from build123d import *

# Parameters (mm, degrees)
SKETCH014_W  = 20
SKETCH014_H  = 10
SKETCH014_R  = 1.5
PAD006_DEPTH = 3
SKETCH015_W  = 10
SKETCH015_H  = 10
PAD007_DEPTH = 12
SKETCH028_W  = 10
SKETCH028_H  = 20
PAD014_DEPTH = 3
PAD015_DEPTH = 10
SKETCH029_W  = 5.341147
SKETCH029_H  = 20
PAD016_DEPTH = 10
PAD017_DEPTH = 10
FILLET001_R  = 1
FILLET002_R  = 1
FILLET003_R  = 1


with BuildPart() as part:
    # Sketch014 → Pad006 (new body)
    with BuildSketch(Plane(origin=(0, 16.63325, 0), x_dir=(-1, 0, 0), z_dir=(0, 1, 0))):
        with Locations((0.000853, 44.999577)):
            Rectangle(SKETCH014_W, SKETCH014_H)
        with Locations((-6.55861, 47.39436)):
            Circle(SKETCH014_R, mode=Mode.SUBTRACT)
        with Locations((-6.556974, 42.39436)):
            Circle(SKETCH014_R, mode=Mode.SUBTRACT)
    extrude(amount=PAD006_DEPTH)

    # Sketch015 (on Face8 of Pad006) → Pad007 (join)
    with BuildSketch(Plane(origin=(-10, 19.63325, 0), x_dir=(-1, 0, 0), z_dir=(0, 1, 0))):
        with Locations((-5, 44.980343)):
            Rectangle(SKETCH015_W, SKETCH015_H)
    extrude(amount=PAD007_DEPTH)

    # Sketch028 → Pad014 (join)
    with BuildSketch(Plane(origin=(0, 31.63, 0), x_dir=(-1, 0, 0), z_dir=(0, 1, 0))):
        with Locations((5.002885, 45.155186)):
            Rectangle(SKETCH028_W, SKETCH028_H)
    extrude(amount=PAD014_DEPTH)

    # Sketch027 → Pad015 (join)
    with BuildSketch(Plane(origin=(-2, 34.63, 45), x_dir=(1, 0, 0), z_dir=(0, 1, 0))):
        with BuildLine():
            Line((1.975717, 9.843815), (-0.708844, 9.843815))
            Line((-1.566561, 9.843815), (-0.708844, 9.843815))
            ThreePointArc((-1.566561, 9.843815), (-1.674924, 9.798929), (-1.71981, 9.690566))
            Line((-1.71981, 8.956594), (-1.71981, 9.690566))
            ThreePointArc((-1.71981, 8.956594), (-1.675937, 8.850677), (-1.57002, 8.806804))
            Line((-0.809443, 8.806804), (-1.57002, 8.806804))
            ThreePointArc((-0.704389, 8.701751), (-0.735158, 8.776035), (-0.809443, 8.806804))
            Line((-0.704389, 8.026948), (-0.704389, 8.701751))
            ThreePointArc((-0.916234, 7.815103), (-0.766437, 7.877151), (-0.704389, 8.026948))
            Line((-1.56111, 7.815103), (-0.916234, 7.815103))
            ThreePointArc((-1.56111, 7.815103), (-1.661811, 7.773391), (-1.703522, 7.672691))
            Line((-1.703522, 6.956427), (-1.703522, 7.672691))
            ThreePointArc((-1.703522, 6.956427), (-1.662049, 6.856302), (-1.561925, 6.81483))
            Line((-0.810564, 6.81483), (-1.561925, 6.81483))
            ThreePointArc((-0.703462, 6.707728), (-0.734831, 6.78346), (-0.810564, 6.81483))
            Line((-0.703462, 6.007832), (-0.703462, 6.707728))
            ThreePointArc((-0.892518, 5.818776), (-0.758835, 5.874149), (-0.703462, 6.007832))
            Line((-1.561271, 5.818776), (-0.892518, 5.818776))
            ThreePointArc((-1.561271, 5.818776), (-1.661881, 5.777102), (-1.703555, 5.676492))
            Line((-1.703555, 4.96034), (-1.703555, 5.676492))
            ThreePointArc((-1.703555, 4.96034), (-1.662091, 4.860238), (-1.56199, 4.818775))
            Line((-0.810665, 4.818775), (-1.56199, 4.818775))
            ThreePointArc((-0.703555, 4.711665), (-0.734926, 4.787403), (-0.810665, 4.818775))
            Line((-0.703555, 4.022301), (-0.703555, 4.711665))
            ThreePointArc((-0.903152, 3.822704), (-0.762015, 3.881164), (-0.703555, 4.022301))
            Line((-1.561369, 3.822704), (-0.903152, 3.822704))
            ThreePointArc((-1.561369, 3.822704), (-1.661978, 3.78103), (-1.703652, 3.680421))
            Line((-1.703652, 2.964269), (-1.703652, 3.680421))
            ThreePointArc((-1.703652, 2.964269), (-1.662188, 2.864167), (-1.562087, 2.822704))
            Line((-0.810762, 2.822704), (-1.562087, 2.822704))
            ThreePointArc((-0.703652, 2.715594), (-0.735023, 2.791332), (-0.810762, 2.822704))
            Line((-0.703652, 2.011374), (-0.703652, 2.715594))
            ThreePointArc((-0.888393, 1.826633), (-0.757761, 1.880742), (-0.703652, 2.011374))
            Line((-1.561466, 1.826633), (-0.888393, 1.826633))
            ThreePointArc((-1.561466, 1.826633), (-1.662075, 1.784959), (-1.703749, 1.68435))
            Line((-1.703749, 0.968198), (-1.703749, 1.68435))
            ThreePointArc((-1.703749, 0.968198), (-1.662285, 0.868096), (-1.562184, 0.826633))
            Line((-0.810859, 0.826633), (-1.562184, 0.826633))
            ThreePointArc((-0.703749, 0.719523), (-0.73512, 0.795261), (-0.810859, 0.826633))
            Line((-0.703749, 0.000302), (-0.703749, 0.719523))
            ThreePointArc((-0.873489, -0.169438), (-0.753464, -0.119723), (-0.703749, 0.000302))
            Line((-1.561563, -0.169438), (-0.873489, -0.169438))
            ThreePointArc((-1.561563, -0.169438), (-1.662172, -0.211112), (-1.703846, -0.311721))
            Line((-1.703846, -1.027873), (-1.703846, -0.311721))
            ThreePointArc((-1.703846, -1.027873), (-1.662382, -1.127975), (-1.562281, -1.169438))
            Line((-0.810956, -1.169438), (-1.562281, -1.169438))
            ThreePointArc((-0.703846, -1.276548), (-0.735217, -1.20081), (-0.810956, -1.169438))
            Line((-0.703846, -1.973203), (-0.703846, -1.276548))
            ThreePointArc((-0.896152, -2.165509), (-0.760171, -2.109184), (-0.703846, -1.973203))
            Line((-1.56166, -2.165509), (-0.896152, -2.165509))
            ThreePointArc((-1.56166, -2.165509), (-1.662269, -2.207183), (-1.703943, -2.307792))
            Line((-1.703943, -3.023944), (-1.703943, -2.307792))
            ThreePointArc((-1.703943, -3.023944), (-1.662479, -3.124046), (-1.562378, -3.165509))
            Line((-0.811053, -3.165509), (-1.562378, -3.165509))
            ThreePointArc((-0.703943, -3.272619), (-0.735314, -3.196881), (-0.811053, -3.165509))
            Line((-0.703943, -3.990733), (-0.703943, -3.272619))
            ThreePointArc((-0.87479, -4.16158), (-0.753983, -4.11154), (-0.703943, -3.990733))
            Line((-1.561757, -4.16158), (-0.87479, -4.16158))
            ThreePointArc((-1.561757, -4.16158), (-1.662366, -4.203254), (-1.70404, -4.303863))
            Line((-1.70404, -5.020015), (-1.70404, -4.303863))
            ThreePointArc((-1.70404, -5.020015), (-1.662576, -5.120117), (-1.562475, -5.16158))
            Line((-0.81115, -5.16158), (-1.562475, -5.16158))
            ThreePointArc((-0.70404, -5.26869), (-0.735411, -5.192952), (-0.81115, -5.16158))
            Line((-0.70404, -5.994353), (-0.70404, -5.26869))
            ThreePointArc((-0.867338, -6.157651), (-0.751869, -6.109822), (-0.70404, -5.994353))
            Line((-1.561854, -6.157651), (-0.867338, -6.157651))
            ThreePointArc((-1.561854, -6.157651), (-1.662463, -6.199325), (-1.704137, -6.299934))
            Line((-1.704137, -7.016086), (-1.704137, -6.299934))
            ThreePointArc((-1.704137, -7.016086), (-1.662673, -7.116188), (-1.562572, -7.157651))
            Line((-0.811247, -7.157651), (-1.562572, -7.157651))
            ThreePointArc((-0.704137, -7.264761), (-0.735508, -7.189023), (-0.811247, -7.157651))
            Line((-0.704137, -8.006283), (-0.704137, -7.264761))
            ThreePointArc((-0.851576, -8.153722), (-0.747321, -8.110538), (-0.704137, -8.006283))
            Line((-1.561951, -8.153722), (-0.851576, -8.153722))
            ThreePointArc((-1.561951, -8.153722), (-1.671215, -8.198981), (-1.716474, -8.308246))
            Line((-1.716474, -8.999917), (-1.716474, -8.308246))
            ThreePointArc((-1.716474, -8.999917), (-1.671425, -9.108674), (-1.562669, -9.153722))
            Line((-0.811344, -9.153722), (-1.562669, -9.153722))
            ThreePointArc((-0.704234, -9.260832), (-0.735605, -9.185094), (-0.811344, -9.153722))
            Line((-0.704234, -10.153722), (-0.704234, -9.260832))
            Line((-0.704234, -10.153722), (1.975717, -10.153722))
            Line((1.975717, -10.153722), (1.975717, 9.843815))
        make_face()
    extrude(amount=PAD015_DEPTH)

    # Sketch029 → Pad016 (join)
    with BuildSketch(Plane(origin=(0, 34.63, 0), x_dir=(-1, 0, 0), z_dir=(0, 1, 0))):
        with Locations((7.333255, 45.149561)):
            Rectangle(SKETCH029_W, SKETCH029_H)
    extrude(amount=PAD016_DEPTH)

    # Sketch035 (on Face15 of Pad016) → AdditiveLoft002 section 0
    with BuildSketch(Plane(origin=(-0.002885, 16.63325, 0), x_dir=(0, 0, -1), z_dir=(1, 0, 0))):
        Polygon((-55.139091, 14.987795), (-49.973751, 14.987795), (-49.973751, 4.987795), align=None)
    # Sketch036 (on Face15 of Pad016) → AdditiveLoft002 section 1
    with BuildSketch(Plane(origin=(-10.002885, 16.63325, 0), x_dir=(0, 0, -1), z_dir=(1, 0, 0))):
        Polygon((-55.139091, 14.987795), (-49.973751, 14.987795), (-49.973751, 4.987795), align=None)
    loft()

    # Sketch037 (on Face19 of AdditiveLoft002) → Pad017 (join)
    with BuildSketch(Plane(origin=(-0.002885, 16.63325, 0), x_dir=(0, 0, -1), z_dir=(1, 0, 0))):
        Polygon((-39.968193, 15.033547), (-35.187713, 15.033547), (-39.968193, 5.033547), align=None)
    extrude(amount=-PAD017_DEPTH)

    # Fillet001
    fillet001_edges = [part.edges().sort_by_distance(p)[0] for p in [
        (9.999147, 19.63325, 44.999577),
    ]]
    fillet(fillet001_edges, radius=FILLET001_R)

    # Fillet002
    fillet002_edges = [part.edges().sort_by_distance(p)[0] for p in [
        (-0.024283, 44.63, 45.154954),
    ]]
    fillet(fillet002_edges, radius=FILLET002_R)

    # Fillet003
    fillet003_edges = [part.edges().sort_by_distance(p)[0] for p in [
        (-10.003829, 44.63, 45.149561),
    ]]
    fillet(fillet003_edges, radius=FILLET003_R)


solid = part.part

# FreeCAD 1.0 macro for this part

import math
import FreeCAD as App
import Part
import Sketcher
from FreeCAD import Vector
Q = App.Units.Quantity


def edges_at(feature, points):
    """Names of the edges that pass closest to the given points."""
    edges = feature.Shape.Edges
    near = lambda p: min(range(len(edges)), key=lambda i: edges[i].distToShape(Part.Vertex(*p))[0])
    return sorted({f"Edge{near(p) + 1}" for p in points})

doc = App.newDocument("Part")
params = doc.addObject("Spreadsheet::Sheet", "Params")
for row, (alias, value) in enumerate([
    ("sketch1_diameter", "3 mm"),
    ("sketch1_width", "20 mm"),
    ("sketch1_height", "10 mm"),
    ("pad1_length", "3 mm"),
    ("sketch2_width", "10 mm"),
    ("pad2_length", "12 mm"),
    ("sketch3_width", "10 mm"),
    ("sketch3_height", "20 mm"),
    ("pad3_length", "3 mm"),
    ("pad4_length", "10 mm"),
    ("sketch5_height", "20 mm"),
    ("pad5_length", "10 mm"),
    ("sketch6_width", "10 mm"),
    ("sketch7_width", "10 mm"),
    ("sketch8_width", "10 mm"),
    ("pad6_length", "10 mm"),
    ("fillet_radius", "1 mm"),
    ("fillet2_radius", "1 mm"),
    ("fillet3_radius", "1 mm"),
], start=1):
    params.set(f"A{row}", alias)
    params.set(f"B{row}", "=" + value)
    params.setAlias(f"B{row}", alias)

body = doc.addObject("PartDesign::Body", "Body")

sketch1 = doc.addObject("Sketcher::SketchObject", "Sketch")
body.addObject(sketch1)
sketch1.AttachmentSupport = (doc.XZ_Plane, [""])
sketch1.MapMode = "FlatFace"
sketch1.AttachmentOffset = App.Placement(Vector(0, 0, -16.63325), App.Rotation())
sketch1.addGeometry([
    Part.LineSegment(Vector(10, 50, 0), Vector(10, 40, 0)),
    Part.LineSegment(Vector(10, 40, 0), Vector(-10, 40, 0)),
    Part.LineSegment(Vector(-10, 40, 0), Vector(-10, 50, 0)),
    Part.LineSegment(Vector(-10, 50, 0), Vector(10, 50, 0)),
    Part.Circle(Vector(6.6, 42.4, 0), Vector(0, 0, 1), 1.5),
    Part.Circle(Vector(6.6, 47.4, 0), Vector(0, 0, 1), 1.5),
], False)
sketch1.addConstraint([
    Sketcher.Constraint("Coincident", 0, 2, 1, 1),
    Sketcher.Constraint("Coincident", 1, 2, 2, 1),
    Sketcher.Constraint("Coincident", 2, 2, 3, 1),
    Sketcher.Constraint("Coincident", 3, 2, 0, 1),
    Sketcher.Constraint("Vertical", 0),
    Sketcher.Constraint("Horizontal", 1),
    Sketcher.Constraint("Vertical", 2),
    Sketcher.Constraint("Horizontal", 3),
    Sketcher.Constraint("Equal", 4, 5),
    Sketcher.Constraint("Diameter", 4, Q("3 mm")),
    Sketcher.Constraint("DistanceX", 1, 2, 1, 1, Q("20 mm")),
    Sketcher.Constraint("DistanceY", 0, 2, 0, 1, Q("10 mm")),
    Sketcher.Constraint("DistanceY", 4, 3, 5, 3, Q("5 mm")),
    Sketcher.Constraint("DistanceY", -1, 1, 4, 3, Q("42.39436 mm")),
    Sketcher.Constraint("DistanceX", -1, 1, 5, 3, Q("6.55861 mm")),
    Sketcher.Constraint("DistanceX", -1, 1, 4, 3, Q("6.556974 mm")),
    Sketcher.Constraint("DistanceX", -1, 1, 0, 2, Q("9.999147 mm")),
    Sketcher.Constraint("DistanceY", -1, 1, 0, 2, Q("39.999577 mm")),
])
sketch1.setExpression("Constraints[9]", "Params.sketch1_diameter")
sketch1.setExpression("Constraints[10]", "Params.sketch1_width")
sketch1.setExpression("Constraints[11]", "Params.sketch1_height")
pad1 = doc.addObject("PartDesign::Pad", "Pad")
body.addObject(pad1)
pad1.Profile = sketch1
pad1.setExpression("Length", "Params.pad1_length")
pad1.Reversed = True

sketch2 = doc.addObject("Sketcher::SketchObject", "Sketch001")
body.addObject(sketch2)
sketch2.AttachmentSupport = (doc.XZ_Plane, [""])
sketch2.MapMode = "FlatFace"
sketch2.AttachmentOffset = App.Placement(Vector(0, 0, -19.63325), App.Rotation())
sketch2.addGeometry([
    Part.LineSegment(Vector(0, 50, 0), Vector(0, 40, 0)),
    Part.LineSegment(Vector(0, 40, 0), Vector(-10, 40, 0)),
    Part.LineSegment(Vector(-10, 40, 0), Vector(-10, 50, 0)),
    Part.LineSegment(Vector(-10, 50, 0), Vector(0, 50, 0)),
], False)
sketch2.addConstraint([
    Sketcher.Constraint("Coincident", 0, 2, 1, 1),
    Sketcher.Constraint("Coincident", 1, 2, 2, 1),
    Sketcher.Constraint("Coincident", 2, 2, 3, 1),
    Sketcher.Constraint("Coincident", 3, 2, 0, 1),
    Sketcher.Constraint("Vertical", 0),
    Sketcher.Constraint("Horizontal", 1),
    Sketcher.Constraint("Vertical", 2),
    Sketcher.Constraint("Horizontal", 3),
    Sketcher.Constraint("PointOnObject", 0, 2, -2),
    Sketcher.Constraint("Equal", 3, 0),
    Sketcher.Constraint("DistanceX", 1, 2, 1, 1, Q("10 mm")),
    Sketcher.Constraint("DistanceY", -1, 1, 0, 2, Q("39.980343 mm")),
])
sketch2.setExpression("Constraints[10]", "Params.sketch2_width")
pad2 = doc.addObject("PartDesign::Pad", "Pad001")
body.addObject(pad2)
pad2.Profile = sketch2
pad2.setExpression("Length", "Params.pad2_length")
pad2.Reversed = True

sketch3 = doc.addObject("Sketcher::SketchObject", "Sketch002")
body.addObject(sketch3)
sketch3.AttachmentSupport = (doc.XZ_Plane, [""])
sketch3.MapMode = "FlatFace"
sketch3.AttachmentOffset = App.Placement(Vector(0, 0, -31.63), App.Rotation())
sketch3.addGeometry([
    Part.LineSegment(Vector(0, 55, 0), Vector(0, 35, 0)),
    Part.LineSegment(Vector(0, 35, 0), Vector(-10, 35, 0)),
    Part.LineSegment(Vector(-10, 35, 0), Vector(-10, 55, 0)),
    Part.LineSegment(Vector(-10, 55, 0), Vector(0, 55, 0)),
], False)
sketch3.addConstraint([
    Sketcher.Constraint("Coincident", 0, 2, 1, 1),
    Sketcher.Constraint("Coincident", 1, 2, 2, 1),
    Sketcher.Constraint("Coincident", 2, 2, 3, 1),
    Sketcher.Constraint("Coincident", 3, 2, 0, 1),
    Sketcher.Constraint("Vertical", 0),
    Sketcher.Constraint("Horizontal", 1),
    Sketcher.Constraint("Vertical", 2),
    Sketcher.Constraint("Horizontal", 3),
    Sketcher.Constraint("DistanceX", 1, 2, 1, 1, Q("10 mm")),
    Sketcher.Constraint("DistanceY", 0, 2, 0, 1, Q("20 mm")),
    Sketcher.Constraint("DistanceX", 0, 2, -1, 1, Q("0.002885 mm")),
    Sketcher.Constraint("DistanceY", -1, 1, 0, 2, Q("35.155186 mm")),
])
sketch3.setExpression("Constraints[8]", "Params.sketch3_width")
sketch3.setExpression("Constraints[9]", "Params.sketch3_height")
pad3 = doc.addObject("PartDesign::Pad", "Pad002")
body.addObject(pad3)
pad3.Profile = sketch3
pad3.setExpression("Length", "Params.pad3_length")
pad3.Reversed = True

sketch4 = doc.addObject("Sketcher::SketchObject", "Sketch003")
body.addObject(sketch4)
sketch4.AttachmentSupport = (doc.XZ_Plane, [""])
sketch4.MapMode = "FlatFace"
sketch4.AttachmentOffset = App.Placement(Vector(0, 0, -34.63), App.Rotation())
sketch4.addGeometry([
    Part.LineSegment(Vector(-0.02, 35.16, 0), Vector(-3.57, 35.16, 0)),
    Part.ArcOfCircle(Part.Circle(Vector(-3.57, 35.31, 0), Vector(0, 0, 1), 0.15), math.radians(-180), math.radians(-90)),
    Part.LineSegment(Vector(-3.72, 35.31, 0), Vector(-3.72, 36.04, 0)),
    Part.ArcOfCircle(Part.Circle(Vector(-3.57, 36.04, 0), Vector(0, 0, 1), 0.15), math.radians(90), math.radians(180)),
    Part.LineSegment(Vector(-3.57, 36.19, 0), Vector(-2.81, 36.19, 0)),
    Part.ArcOfCircle(Part.Circle(Vector(-2.81, 36.3, 0), Vector(0, 0, 1), 0.11), math.radians(-90), math.radians(0)),
    Part.LineSegment(Vector(-2.7, 36.3, 0), Vector(-2.7, 36.97, 0)),
    Part.ArcOfCircle(Part.Circle(Vector(-2.92, 36.97, 0), Vector(0, 0, 1), 0.21), math.radians(0), math.radians(90)),
    Part.LineSegment(Vector(-2.92, 37.18, 0), Vector(-3.56, 37.18, 0)),
    Part.ArcOfCircle(Part.Circle(Vector(-3.56, 37.33, 0), Vector(0, 0, 1), 0.14), math.radians(180), math.radians(270)),
    Part.LineSegment(Vector(-3.7, 37.33, 0), Vector(-3.7, 38.04, 0)),
    Part.ArcOfCircle(Part.Circle(Vector(-3.56, 38.04, 0), Vector(0, 0, 1), 0.14), math.radians(90), math.radians(180)),
    Part.LineSegment(Vector(-3.56, 38.19, 0), Vector(-2.81, 38.19, 0)),
    Part.ArcOfCircle(Part.Circle(Vector(-2.81, 38.29, 0), Vector(0, 0, 1), 0.11), math.radians(-90), math.radians(0)),
    Part.LineSegment(Vector(-2.7, 38.29, 0), Vector(-2.7, 38.99, 0)),
    Part.ArcOfCircle(Part.Circle(Vector(-2.89, 38.99, 0), Vector(0, 0, 1), 0.19), math.radians(0), math.radians(90)),
    Part.LineSegment(Vector(-2.89, 39.18, 0), Vector(-3.56, 39.18, 0)),
    Part.ArcOfCircle(Part.Circle(Vector(-3.56, 39.32, 0), Vector(0, 0, 1), 0.14), math.radians(180), math.radians(270)),
    Part.LineSegment(Vector(-3.7, 39.32, 0), Vector(-3.7, 40.04, 0)),
    Part.ArcOfCircle(Part.Circle(Vector(-3.56, 40.04, 0), Vector(0, 0, 1), 0.14), math.radians(90), math.radians(180)),
    Part.LineSegment(Vector(-3.56, 40.18, 0), Vector(-2.81, 40.18, 0)),
    Part.ArcOfCircle(Part.Circle(Vector(-2.81, 40.29, 0), Vector(0, 0, 1), 0.11), math.radians(-90), math.radians(0)),
    Part.LineSegment(Vector(-2.7, 40.29, 0), Vector(-2.7, 40.98, 0)),
    Part.ArcOfCircle(Part.Circle(Vector(-2.9, 40.98, 0), Vector(0, 0, 1), 0.2), math.radians(0), math.radians(90)),
    Part.LineSegment(Vector(-2.9, 41.18, 0), Vector(-3.56, 41.18, 0)),
    Part.ArcOfCircle(Part.Circle(Vector(-3.56, 41.32, 0), Vector(0, 0, 1), 0.14), math.radians(-180), math.radians(-90)),
    Part.LineSegment(Vector(-3.7, 41.32, 0), Vector(-3.7, 42.04, 0)),
    Part.ArcOfCircle(Part.Circle(Vector(-3.56, 42.04, 0), Vector(0, 0, 1), 0.14), math.radians(90), math.radians(180)),
    Part.LineSegment(Vector(-3.56, 42.18, 0), Vector(-2.81, 42.18, 0)),
    Part.ArcOfCircle(Part.Circle(Vector(-2.81, 42.28, 0), Vector(0, 0, 1), 0.11), math.radians(-90), math.radians(0)),
    Part.LineSegment(Vector(-2.7, 42.28, 0), Vector(-2.7, 42.99, 0)),
    Part.ArcOfCircle(Part.Circle(Vector(-2.89, 42.99, 0), Vector(0, 0, 1), 0.18), math.radians(0), math.radians(90)),
    Part.LineSegment(Vector(-2.89, 43.17, 0), Vector(-3.56, 43.17, 0)),
    Part.ArcOfCircle(Part.Circle(Vector(-3.56, 43.32, 0), Vector(0, 0, 1), 0.14), math.radians(-180), math.radians(-90)),
    Part.LineSegment(Vector(-3.7, 43.32, 0), Vector(-3.7, 44.03, 0)),
    Part.ArcOfCircle(Part.Circle(Vector(-3.56, 44.03, 0), Vector(0, 0, 1), 0.14), math.radians(90), math.radians(180)),
    Part.LineSegment(Vector(-3.56, 44.17, 0), Vector(-2.81, 44.17, 0)),
    Part.ArcOfCircle(Part.Circle(Vector(-2.81, 44.28, 0), Vector(0, 0, 1), 0.11), math.radians(-90), math.radians(0)),
    Part.LineSegment(Vector(-2.7, 44.28, 0), Vector(-2.7, 45, 0)),
    Part.ArcOfCircle(Part.Circle(Vector(-2.87, 45, 0), Vector(0, 0, 1), 0.17), math.radians(0), math.radians(90)),
    Part.LineSegment(Vector(-2.87, 45.17, 0), Vector(-3.56, 45.17, 0)),
    Part.ArcOfCircle(Part.Circle(Vector(-3.56, 45.31, 0), Vector(0, 0, 1), 0.14), math.radians(-180), math.radians(-90)),
    Part.LineSegment(Vector(-3.7, 45.31, 0), Vector(-3.7, 46.03, 0)),
    Part.ArcOfCircle(Part.Circle(Vector(-3.56, 46.03, 0), Vector(0, 0, 1), 0.14), math.radians(90), math.radians(180)),
    Part.LineSegment(Vector(-3.56, 46.17, 0), Vector(-2.81, 46.17, 0)),
    Part.ArcOfCircle(Part.Circle(Vector(-2.81, 46.28, 0), Vector(0, 0, 1), 0.11), math.radians(-90), math.radians(0)),
    Part.LineSegment(Vector(-2.7, 46.28, 0), Vector(-2.7, 46.97, 0)),
    Part.ArcOfCircle(Part.Circle(Vector(-2.9, 46.97, 0), Vector(0, 0, 1), 0.19), math.radians(0), math.radians(90)),
    Part.LineSegment(Vector(-2.9, 47.17, 0), Vector(-3.56, 47.17, 0)),
    Part.ArcOfCircle(Part.Circle(Vector(-3.56, 47.31, 0), Vector(0, 0, 1), 0.14), math.radians(-180), math.radians(-90)),
    Part.LineSegment(Vector(-3.7, 47.31, 0), Vector(-3.7, 48.02, 0)),
    Part.ArcOfCircle(Part.Circle(Vector(-3.56, 48.02, 0), Vector(0, 0, 1), 0.14), math.radians(90), math.radians(180)),
    Part.LineSegment(Vector(-3.56, 48.17, 0), Vector(-2.81, 48.17, 0)),
    Part.ArcOfCircle(Part.Circle(Vector(-2.81, 48.27, 0), Vector(0, 0, 1), 0.11), math.radians(-90), math.radians(0)),
    Part.LineSegment(Vector(-2.7, 48.27, 0), Vector(-2.7, 48.99, 0)),
    Part.ArcOfCircle(Part.Circle(Vector(-2.87, 48.99, 0), Vector(0, 0, 1), 0.17), math.radians(0), math.radians(90)),
    Part.LineSegment(Vector(-2.87, 49.16, 0), Vector(-3.56, 49.16, 0)),
    Part.ArcOfCircle(Part.Circle(Vector(-3.56, 49.3, 0), Vector(0, 0, 1), 0.14), math.radians(-180), math.radians(-90)),
    Part.LineSegment(Vector(-3.7, 49.3, 0), Vector(-3.7, 50.02, 0)),
    Part.ArcOfCircle(Part.Circle(Vector(-3.56, 50.02, 0), Vector(0, 0, 1), 0.14), math.radians(90), math.radians(180)),
    Part.LineSegment(Vector(-3.56, 50.16, 0), Vector(-2.81, 50.16, 0)),
    Part.ArcOfCircle(Part.Circle(Vector(-2.81, 50.27, 0), Vector(0, 0, 1), 0.11), math.radians(-90), math.radians(0)),
    Part.LineSegment(Vector(-2.7, 50.27, 0), Vector(-2.7, 50.99, 0)),
    Part.ArcOfCircle(Part.Circle(Vector(-2.87, 50.99, 0), Vector(0, 0, 1), 0.16), math.radians(0), math.radians(90)),
    Part.LineSegment(Vector(-2.87, 51.16, 0), Vector(-3.56, 51.16, 0)),
    Part.ArcOfCircle(Part.Circle(Vector(-3.56, 51.3, 0), Vector(0, 0, 1), 0.14), math.radians(-180), math.radians(-90)),
    Part.LineSegment(Vector(-3.7, 51.3, 0), Vector(-3.7, 52.02, 0)),
    Part.ArcOfCircle(Part.Circle(Vector(-3.56, 52.02, 0), Vector(0, 0, 1), 0.14), math.radians(90), math.radians(180)),
    Part.LineSegment(Vector(-3.56, 52.16, 0), Vector(-2.81, 52.16, 0)),
    Part.ArcOfCircle(Part.Circle(Vector(-2.81, 52.26, 0), Vector(0, 0, 1), 0.11), math.radians(-90), math.radians(0)),
    Part.LineSegment(Vector(-2.7, 52.26, 0), Vector(-2.7, 53.01, 0)),
    Part.ArcOfCircle(Part.Circle(Vector(-2.85, 53.01, 0), Vector(0, 0, 1), 0.15), math.radians(0), math.radians(90)),
    Part.LineSegment(Vector(-2.85, 53.15, 0), Vector(-3.56, 53.15, 0)),
    Part.ArcOfCircle(Part.Circle(Vector(-3.56, 53.31, 0), Vector(0, 0, 1), 0.15), math.radians(180), math.radians(270)),
    Part.LineSegment(Vector(-3.72, 53.31, 0), Vector(-3.72, 54, 0)),
    Part.ArcOfCircle(Part.Circle(Vector(-3.56, 54, 0), Vector(0, 0, 1), 0.15), math.radians(90), math.radians(180)),
    Part.LineSegment(Vector(-3.56, 54.15, 0), Vector(-2.81, 54.15, 0)),
    Part.ArcOfCircle(Part.Circle(Vector(-2.81, 54.26, 0), Vector(0, 0, 1), 0.11), math.radians(-90), math.radians(0)),
    Part.LineSegment(Vector(-2.7, 54.26, 0), Vector(-2.7, 55.15, 0)),
    Part.LineSegment(Vector(-2.7, 55.15, 0), Vector(-0.02, 55.15, 0)),
    Part.LineSegment(Vector(-0.02, 55.15, 0), Vector(-0.02, 35.16, 0)),
], False)
sketch4.addConstraint([
    Sketcher.Constraint("Coincident", 0, 2, 1, 2),
    Sketcher.Constraint("Coincident", 1, 1, 2, 1),
    Sketcher.Constraint("Coincident", 2, 2, 3, 2),
    Sketcher.Constraint("Coincident", 3, 1, 4, 1),
    Sketcher.Constraint("Coincident", 4, 2, 5, 1),
    Sketcher.Constraint("Coincident", 5, 2, 6, 1),
    Sketcher.Constraint("Tangent", 6, 2, 7, 1),
    Sketcher.Constraint("Tangent", 7, 2, 8, 1),
    Sketcher.Constraint("Tangent", 8, 2, 9, 2),
    Sketcher.Constraint("Tangent", 9, 1, 10, 1),
    Sketcher.Constraint("Coincident", 10, 2, 11, 2),
    Sketcher.Constraint("Coincident", 11, 1, 12, 1),
    Sketcher.Constraint("Tangent", 12, 2, 13, 1),
    Sketcher.Constraint("Tangent", 13, 2, 14, 1),
    Sketcher.Constraint("Coincident", 14, 2, 15, 1),
    Sketcher.Constraint("Coincident", 15, 2, 16, 1),
    Sketcher.Constraint("Tangent", 16, 2, 17, 2),
    Sketcher.Constraint("Tangent", 17, 1, 18, 1),
    Sketcher.Constraint("Tangent", 18, 2, 19, 2),
    Sketcher.Constraint("Tangent", 19, 1, 20, 1),
    Sketcher.Constraint("Coincident", 20, 2, 21, 1),
    Sketcher.Constraint("Coincident", 21, 2, 22, 1),
    Sketcher.Constraint("Coincident", 22, 2, 23, 1),
    Sketcher.Constraint("Coincident", 23, 2, 24, 1),
    Sketcher.Constraint("Coincident", 24, 2, 25, 2),
    Sketcher.Constraint("Coincident", 25, 1, 26, 1),
    Sketcher.Constraint("Tangent", 26, 2, 27, 2),
    Sketcher.Constraint("Tangent", 27, 1, 28, 1),
    Sketcher.Constraint("Coincident", 28, 2, 29, 1),
    Sketcher.Constraint("Coincident", 29, 2, 30, 1),
    Sketcher.Constraint("Coincident", 30, 2, 31, 1),
    Sketcher.Constraint("Coincident", 31, 2, 32, 1),
    Sketcher.Constraint("Coincident", 32, 2, 33, 2),
    Sketcher.Constraint("Coincident", 33, 1, 34, 1),
    Sketcher.Constraint("Tangent", 34, 2, 35, 2),
    Sketcher.Constraint("Tangent", 35, 1, 36, 1),
    Sketcher.Constraint("Coincident", 36, 2, 37, 1),
    Sketcher.Constraint("Coincident", 37, 2, 38, 1),
    Sketcher.Constraint("Coincident", 38, 2, 39, 1),
    Sketcher.Constraint("Coincident", 39, 2, 40, 1),
    Sketcher.Constraint("Coincident", 40, 2, 41, 2),
    Sketcher.Constraint("Coincident", 41, 1, 42, 1),
    Sketcher.Constraint("Tangent", 42, 2, 43, 2),
    Sketcher.Constraint("Tangent", 43, 1, 44, 1),
    Sketcher.Constraint("Coincident", 44, 2, 45, 1),
    Sketcher.Constraint("Coincident", 45, 2, 46, 1),
    Sketcher.Constraint("Coincident", 46, 2, 47, 1),
    Sketcher.Constraint("Coincident", 47, 2, 48, 1),
    Sketcher.Constraint("Coincident", 48, 2, 49, 2),
    Sketcher.Constraint("Coincident", 49, 1, 50, 1),
    Sketcher.Constraint("Tangent", 50, 2, 51, 2),
    Sketcher.Constraint("Tangent", 51, 1, 52, 1),
    Sketcher.Constraint("Coincident", 52, 2, 53, 1),
    Sketcher.Constraint("Coincident", 53, 2, 54, 1),
    Sketcher.Constraint("Tangent", 54, 2, 55, 1),
    Sketcher.Constraint("Tangent", 55, 2, 56, 1),
    Sketcher.Constraint("Coincident", 56, 2, 57, 2),
    Sketcher.Constraint("Coincident", 57, 1, 58, 1),
    Sketcher.Constraint("Tangent", 58, 2, 59, 2),
    Sketcher.Constraint("Tangent", 59, 1, 60, 1),
    Sketcher.Constraint("Coincident", 60, 2, 61, 1),
    Sketcher.Constraint("Coincident", 61, 2, 62, 1),
    Sketcher.Constraint("Coincident", 62, 2, 63, 1),
    Sketcher.Constraint("Coincident", 63, 2, 64, 1),
    Sketcher.Constraint("Coincident", 64, 2, 65, 2),
    Sketcher.Constraint("Coincident", 65, 1, 66, 1),
    Sketcher.Constraint("Tangent", 66, 2, 67, 2),
    Sketcher.Constraint("Tangent", 67, 1, 68, 1),
    Sketcher.Constraint("Coincident", 68, 2, 69, 1),
    Sketcher.Constraint("Coincident", 69, 2, 70, 1),
    Sketcher.Constraint("Coincident", 70, 2, 71, 1),
    Sketcher.Constraint("Coincident", 71, 2, 72, 1),
    Sketcher.Constraint("Coincident", 72, 2, 73, 2),
    Sketcher.Constraint("Tangent", 73, 1, 74, 1),
    Sketcher.Constraint("Tangent", 74, 2, 75, 2),
    Sketcher.Constraint("Tangent", 75, 1, 76, 1),
    Sketcher.Constraint("Coincident", 76, 2, 77, 1),
    Sketcher.Constraint("Coincident", 77, 2, 78, 1),
    Sketcher.Constraint("Coincident", 78, 2, 79, 1),
    Sketcher.Constraint("Coincident", 79, 2, 80, 1),
    Sketcher.Constraint("Coincident", 80, 2, 0, 1),
    Sketcher.Constraint("Horizontal", 0),
    Sketcher.Constraint("Vertical", 2),
    Sketcher.Constraint("Horizontal", 4),
    Sketcher.Constraint("Vertical", 6),
    Sketcher.Constraint("Horizontal", 8),
    Sketcher.Constraint("Vertical", 10),
    Sketcher.Constraint("Horizontal", 12),
    Sketcher.Constraint("Vertical", 14),
    Sketcher.Constraint("Horizontal", 16),
    Sketcher.Constraint("Vertical", 18),
    Sketcher.Constraint("Horizontal", 20),
    Sketcher.Constraint("Vertical", 22),
    Sketcher.Constraint("Horizontal", 24),
    Sketcher.Constraint("Vertical", 26),
    Sketcher.Constraint("Horizontal", 28),
    Sketcher.Constraint("Vertical", 30),
    Sketcher.Constraint("Horizontal", 32),
    Sketcher.Constraint("Vertical", 34),
    Sketcher.Constraint("Horizontal", 36),
    Sketcher.Constraint("Vertical", 38),
    Sketcher.Constraint("Horizontal", 40),
    Sketcher.Constraint("Vertical", 42),
    Sketcher.Constraint("Horizontal", 44),
    Sketcher.Constraint("Vertical", 46),
    Sketcher.Constraint("Horizontal", 48),
    Sketcher.Constraint("Vertical", 50),
    Sketcher.Constraint("Horizontal", 52),
    Sketcher.Constraint("Vertical", 54),
    Sketcher.Constraint("Horizontal", 56),
    Sketcher.Constraint("Vertical", 58),
    Sketcher.Constraint("Horizontal", 60),
    Sketcher.Constraint("Vertical", 62),
    Sketcher.Constraint("Horizontal", 64),
    Sketcher.Constraint("Vertical", 66),
    Sketcher.Constraint("Horizontal", 68),
    Sketcher.Constraint("Vertical", 70),
    Sketcher.Constraint("Horizontal", 72),
    Sketcher.Constraint("Vertical", 74),
    Sketcher.Constraint("Horizontal", 76),
    Sketcher.Constraint("Vertical", 78),
    Sketcher.Constraint("Horizontal", 79),
    Sketcher.Constraint("Vertical", 80),
    Sketcher.Constraint("Equal", 17, 25),
    Sketcher.Constraint("Equal", 19, 27),
    Sketcher.Constraint("Equal", 21, 29),
    Sketcher.Constraint("Equal", 25, 33),
    Sketcher.Constraint("Equal", 27, 35),
    Sketcher.Constraint("Equal", 29, 37),
    Sketcher.Constraint("Equal", 33, 41),
    Sketcher.Constraint("Equal", 35, 43),
    Sketcher.Constraint("Equal", 37, 45),
    Sketcher.Constraint("Equal", 41, 49),
    Sketcher.Constraint("Equal", 43, 51),
    Sketcher.Constraint("Equal", 45, 53),
    Sketcher.Constraint("Equal", 49, 57),
    Sketcher.Constraint("Equal", 51, 59),
    Sketcher.Constraint("Equal", 53, 61),
    Sketcher.Constraint("Equal", 57, 65),
    Sketcher.Constraint("Equal", 59, 67),
    Sketcher.Constraint("Equal", 61, 69),
    Sketcher.Constraint("Equal", 69, 77),
    Sketcher.Constraint("Horizontal", 3, 3, 2, 2),
    Sketcher.Constraint("Horizontal", 11, 3, 10, 2),
    Sketcher.Constraint("Horizontal", 15, 3, 14, 2),
    Sketcher.Constraint("Horizontal", 31, 3, 30, 2),
    Sketcher.Constraint("Horizontal", 47, 3, 46, 2),
    Sketcher.Constraint("Horizontal", 63, 3, 62, 2),
    Sketcher.Constraint("Horizontal", 71, 3, 70, 2),
    Sketcher.Constraint("Vertical", 1, 3, 0, 2),
    Sketcher.Constraint("Vertical", 21, 3, 20, 2),
    Sketcher.Constraint("Vertical", 25, 3, 24, 2),
    Sketcher.Constraint("Vertical", 29, 3, 28, 2),
    Sketcher.Constraint("Vertical", 33, 3, 32, 2),
    Sketcher.Constraint("Vertical", 37, 3, 36, 2),
    Sketcher.Constraint("Vertical", 41, 3, 40, 2),
    Sketcher.Constraint("Vertical", 45, 3, 44, 2),
    Sketcher.Constraint("Vertical", 49, 3, 48, 2),
    Sketcher.Constraint("Vertical", 53, 3, 52, 2),
    Sketcher.Constraint("Vertical", 57, 3, 56, 2),
    Sketcher.Constraint("Vertical", 61, 3, 60, 2),
    Sketcher.Constraint("Vertical", 65, 3, 64, 2),
    Sketcher.Constraint("Vertical", 69, 3, 68, 2),
    Sketcher.Constraint("Vertical", 73, 3, 72, 2),
    Sketcher.Constraint("Vertical", 77, 3, 76, 2),
    Sketcher.Constraint("Equal", 20, 28),
    Sketcher.Constraint("Equal", 28, 36),
    Sketcher.Constraint("Equal", 36, 44),
    Sketcher.Constraint("Equal", 44, 52),
    Sketcher.Constraint("Equal", 52, 60),
    Sketcher.Constraint("Equal", 60, 68),
    Sketcher.Constraint("Equal", 68, 76),
    Sketcher.Constraint("Equal", 18, 26),
    Sketcher.Constraint("Equal", 26, 34),
    Sketcher.Constraint("Equal", 34, 42),
    Sketcher.Constraint("Equal", 42, 50),
    Sketcher.Constraint("Equal", 50, 58),
    Sketcher.Constraint("Equal", 58, 66),
    Sketcher.Constraint("Radius", 63, Q("0.163298 mm")),
    Sketcher.Constraint("Radius", 1, Q("0.15325 mm")),
    Sketcher.Constraint("Radius", 3, Q("0.149792 mm")),
    Sketcher.Constraint("Radius", 5, Q("0.105052 mm")),
    Sketcher.Constraint("Radius", 9, Q("0.142412 mm")),
    Sketcher.Constraint("Radius", 21, Q("0.107109 mm")),
    Sketcher.Constraint("Radius", 31, Q("0.18474 mm")),
    Sketcher.Constraint("Radius", 71, Q("0.147439 mm")),
    Sketcher.Constraint("Radius", 7, Q("0.211845 mm")),
    Sketcher.Constraint("Radius", 11, Q("0.141596 mm")),
    Sketcher.Constraint("Radius", 13, Q("0.107102 mm")),
    Sketcher.Constraint("Radius", 15, Q("0.189055 mm")),
    Sketcher.Constraint("Radius", 17, Q("0.142284 mm")),
    Sketcher.Constraint("Radius", 19, Q("0.141565 mm")),
    Sketcher.Constraint("Radius", 23, Q("0.199595 mm")),
    Sketcher.Constraint("Radius", 39, Q("0.169738 mm")),
    Sketcher.Constraint("Radius", 47, Q("0.192306 mm")),
    Sketcher.Constraint("Radius", 55, Q("0.170847 mm")),
    Sketcher.Constraint("Radius", 73, Q("0.154524 mm")),
    Sketcher.Constraint("Radius", 75, Q("0.153805 mm")),
    Sketcher.Constraint("DistanceX", 0, 2, 0, 1, Q("3.542278 mm")),
    Sketcher.Constraint("DistanceX", 12, 1, 12, 2, Q("0.751361 mm")),
    Sketcher.Constraint("DistanceX", 79, 1, 79, 2, Q("2.679951 mm")),
    Sketcher.Constraint("DistanceY", 2, 1, 2, 2, Q("0.733972 mm")),
    Sketcher.Constraint("DistanceY", 30, 1, 30, 2, Q("0.70422 mm")),
    Sketcher.Constraint("DistanceY", 38, 1, 38, 2, Q("0.719221 mm")),
    Sketcher.Constraint("DistanceY", 74, 1, 74, 2, Q("0.691671 mm")),
    Sketcher.Constraint("DistanceY", 78, 1, 78, 2, Q("0.89289 mm")),
    Sketcher.Constraint("DistanceY", -1, 1, 23, 3, Q("40.977701 mm")),
    Sketcher.Constraint("DistanceY", -1, 1, 35, 3, Q("44.031802 mm")),
    Sketcher.Constraint("DistanceY", -1, 1, 39, 3, Q("44.9997 mm")),
    Sketcher.Constraint("DistanceY", -1, 1, 22, 2, Q("40.977699 mm")),
    Sketcher.Constraint("DistanceY", -1, 1, 38, 2, Q("44.999698 mm")),
    Sketcher.Constraint("DistanceX", 4, 1, 4, 2, Q("0.760577 mm")),
    Sketcher.Constraint("DistanceX", 8, 2, 8, 1, Q("0.644876 mm")),
    Sketcher.Constraint("DistanceX", 16, 2, 16, 1, Q("0.668753 mm")),
    Sketcher.Constraint("DistanceX", 20, 1, 20, 2, Q("0.751325 mm")),
    Sketcher.Constraint("DistanceX", 24, 2, 24, 1, Q("0.658217 mm")),
    Sketcher.Constraint("DistanceX", 32, 2, 32, 1, Q("0.673073 mm")),
    Sketcher.Constraint("DistanceX", 40, 2, 40, 1, Q("0.688074 mm")),
    Sketcher.Constraint("DistanceX", 48, 2, 48, 1, Q("0.665508 mm")),
    Sketcher.Constraint("DistanceX", 56, 2, 56, 1, Q("0.686967 mm")),
    Sketcher.Constraint("DistanceX", 64, 2, 64, 1, Q("0.694516 mm")),
    Sketcher.Constraint("DistanceX", 72, 2, 72, 1, Q("0.710375 mm")),
    Sketcher.Constraint("DistanceY", 6, 1, 6, 2, Q("0.674803 mm")),
    Sketcher.Constraint("DistanceY", 10, 1, 10, 2, Q("0.716264 mm")),
    Sketcher.Constraint("DistanceY", 14, 1, 14, 2, Q("0.699896 mm")),
    Sketcher.Constraint("DistanceY", 18, 1, 18, 2, Q("0.716152 mm")),
    Sketcher.Constraint("DistanceY", 22, 1, 22, 2, Q("0.689364 mm")),
    Sketcher.Constraint("DistanceY", 46, 1, 46, 2, Q("0.696655 mm")),
    Sketcher.Constraint("DistanceY", 54, 1, 54, 2, Q("0.718114 mm")),
    Sketcher.Constraint("DistanceY", 62, 1, 62, 2, Q("0.725663 mm")),
    Sketcher.Constraint("DistanceY", 70, 1, 70, 2, Q("0.741522 mm")),
    Sketcher.Constraint("DistanceY", 80, 2, 80, 1, Q("19.997537 mm")),
    Sketcher.Constraint("DistanceX", 1, 3, -1, 1, Q("3.56656 mm")),
    Sketcher.Constraint("DistanceX", 5, 3, -1, 1, Q("2.809441 mm")),
    Sketcher.Constraint("DistanceY", -1, 1, 7, 3, Q("36.973052 mm")),
    Sketcher.Constraint("DistanceX", 17, 3, -1, 1, Q("3.561271 mm")),
    Sketcher.Constraint("DistanceX", 25, 3, -1, 1, Q("3.561368 mm")),
    Sketcher.Constraint("DistanceY", -1, 1, 27, 3, Q("42.035731 mm")),
    Sketcher.Constraint("DistanceY", -1, 1, 33, 3, Q("43.315651 mm")),
    Sketcher.Constraint("DistanceX", 37, 3, -1, 1, Q("2.810858 mm")),
    Sketcher.Constraint("DistanceX", 43, 3, -1, 1, Q("3.562281 mm")),
    Sketcher.Constraint("DistanceX", 49, 3, -1, 1, Q("3.561659 mm")),
    Sketcher.Constraint("DistanceY", -1, 1, 53, 3, Q("48.272618 mm")),
    Sketcher.Constraint("DistanceY", -1, 1, 61, 3, Q("50.268689 mm")),
    Sketcher.Constraint("DistanceX", 67, 3, -1, 1, Q("3.562572 mm")),
    Sketcher.Constraint("DistanceY", -1, 1, 69, 3, Q("52.26476 mm")),
    Sketcher.Constraint("DistanceY", -1, 1, 77, 3, Q("54.260831 mm")),
    Sketcher.Constraint("DistanceX", 3, 1, -1, 1, Q("3.57002 mm")),
    Sketcher.Constraint("DistanceX", 14, 2, -1, 1, Q("2.703462 mm")),
    Sketcher.Constraint("DistanceY", -1, 1, 41, 1, Q("45.311721 mm")),
    Sketcher.Constraint("DistanceY", -1, 1, 47, 2, Q("47.165509 mm")),
    Sketcher.Constraint("DistanceY", -1, 1, 53, 2, Q("48.272619 mm")),
    Sketcher.Constraint("DistanceY", -1, 1, 61, 2, Q("50.26869 mm")),
    Sketcher.Constraint("DistanceY", -1, 1, 1, 3, Q("35.309435 mm")),
    Sketcher.Constraint("DistanceY", -1, 1, 3, 3, Q("36.043404 mm")),
])
pad4 = doc.addObject("PartDesign::Pad", "Pad003")
body.addObject(pad4)
pad4.Profile = sketch4
pad4.setExpression("Length", "Params.pad4_length")
pad4.Reversed = True

sketch5 = doc.addObject("Sketcher::SketchObject", "Sketch004")
body.addObject(sketch5)
sketch5.AttachmentSupport = (doc.XZ_Plane, [""])
sketch5.MapMode = "FlatFace"
sketch5.AttachmentOffset = App.Placement(Vector(0, 0, -34.63), App.Rotation())
sketch5.addGeometry([
    Part.LineSegment(Vector(-5, 55, 0), Vector(-5, 35, 0)),
    Part.LineSegment(Vector(-5, 35, 0), Vector(-10, 35, 0)),
    Part.LineSegment(Vector(-10, 35, 0), Vector(-10, 55, 0)),
    Part.LineSegment(Vector(-10, 55, 0), Vector(-5, 55, 0)),
], False)
sketch5.addConstraint([
    Sketcher.Constraint("Coincident", 0, 2, 1, 1),
    Sketcher.Constraint("Coincident", 1, 2, 2, 1),
    Sketcher.Constraint("Coincident", 2, 2, 3, 1),
    Sketcher.Constraint("Coincident", 3, 2, 0, 1),
    Sketcher.Constraint("Vertical", 0),
    Sketcher.Constraint("Horizontal", 1),
    Sketcher.Constraint("Vertical", 2),
    Sketcher.Constraint("Horizontal", 3),
    Sketcher.Constraint("DistanceY", 0, 2, 0, 1, Q("20 mm")),
    Sketcher.Constraint("DistanceX", 1, 2, 1, 1, Q("5.341147 mm")),
    Sketcher.Constraint("DistanceX", 0, 2, -1, 1, Q("4.662681 mm")),
    Sketcher.Constraint("DistanceY", -1, 1, 0, 2, Q("35.149561 mm")),
])
sketch5.setExpression("Constraints[8]", "Params.sketch5_height")
pad5 = doc.addObject("PartDesign::Pad", "Pad004")
body.addObject(pad5)
pad5.Profile = sketch5
pad5.setExpression("Length", "Params.pad5_length")
pad5.Reversed = True

sketch6 = doc.addObject("Sketcher::SketchObject", "Sketch005")
body.addObject(sketch6)
sketch6.AttachmentSupport = (doc.YZ_Plane, [""])
sketch6.MapMode = "FlatFace"
sketch6.AttachmentOffset = App.Placement(Vector(0, 0, -0.002885), App.Rotation())
sketch6.addGeometry([
    Part.LineSegment(Vector(32, 50, 0), Vector(32, 55, 0)),
    Part.LineSegment(Vector(32, 55, 0), Vector(22, 50, 0)),
    Part.LineSegment(Vector(22, 50, 0), Vector(32, 50, 0)),
], False)
sketch6.addConstraint([
    Sketcher.Constraint("Coincident", 0, 2, 1, 1),
    Sketcher.Constraint("Coincident", 1, 2, 2, 1),
    Sketcher.Constraint("Coincident", 2, 2, 0, 1),
    Sketcher.Constraint("Vertical", 0),
    Sketcher.Constraint("Horizontal", 2),
    Sketcher.Constraint("DistanceX", 2, 1, 2, 2, Q("10 mm")),
    Sketcher.Constraint("DistanceY", 0, 1, 0, 2, Q("5.16534 mm")),
    Sketcher.Constraint("DistanceY", -1, 1, 0, 2, Q("55.139091 mm")),
    Sketcher.Constraint("DistanceX", -1, 1, 0, 2, Q("31.621045 mm")),
])
sketch6.setExpression("Constraints[5]", "Params.sketch6_width")

sketch7 = doc.addObject("Sketcher::SketchObject", "Sketch006")
body.addObject(sketch7)
sketch7.AttachmentSupport = (doc.YZ_Plane, [""])
sketch7.MapMode = "FlatFace"
sketch7.AttachmentOffset = App.Placement(Vector(0, 0, -10.002885), App.Rotation())
sketch7.addGeometry([
    Part.LineSegment(Vector(32, 50, 0), Vector(32, 55, 0)),
    Part.LineSegment(Vector(32, 55, 0), Vector(22, 50, 0)),
    Part.LineSegment(Vector(22, 50, 0), Vector(32, 50, 0)),
], False)
sketch7.addConstraint([
    Sketcher.Constraint("Coincident", 0, 2, 1, 1),
    Sketcher.Constraint("Coincident", 1, 2, 2, 1),
    Sketcher.Constraint("Coincident", 2, 2, 0, 1),
    Sketcher.Constraint("Vertical", 0),
    Sketcher.Constraint("Horizontal", 2),
    Sketcher.Constraint("DistanceX", 2, 1, 2, 2, Q("10 mm")),
    Sketcher.Constraint("DistanceY", 0, 1, 0, 2, Q("5.16534 mm")),
    Sketcher.Constraint("DistanceY", -1, 1, 0, 2, Q("55.139091 mm")),
    Sketcher.Constraint("DistanceX", -1, 1, 0, 2, Q("31.621045 mm")),
])
sketch7.setExpression("Constraints[5]", "Params.sketch7_width")

additiveloft = doc.addObject("PartDesign::AdditiveLoft", "AdditiveLoft")
body.addObject(additiveloft)
additiveloft.Profile = sketch6
additiveloft.Sections = [sketch7]

sketch8 = doc.addObject("Sketcher::SketchObject", "Sketch007")
body.addObject(sketch8)
sketch8.AttachmentSupport = (doc.YZ_Plane, [""])
sketch8.MapMode = "FlatFace"
sketch8.AttachmentOffset = App.Placement(Vector(0, 0, -0.002885), App.Rotation())
sketch8.addGeometry([
    Part.LineSegment(Vector(31.7, 35.2, 0), Vector(31.7, 40, 0)),
    Part.LineSegment(Vector(31.7, 40, 0), Vector(21.7, 40, 0)),
    Part.LineSegment(Vector(21.7, 40, 0), Vector(31.7, 35.2, 0)),
], False)
sketch8.addConstraint([
    Sketcher.Constraint("Coincident", 0, 2, 1, 1),
    Sketcher.Constraint("Coincident", 1, 2, 2, 1),
    Sketcher.Constraint("Coincident", 2, 2, 0, 1),
    Sketcher.Constraint("Vertical", 0),
    Sketcher.Constraint("Horizontal", 1),
    Sketcher.Constraint("DistanceX", 1, 2, 1, 1, Q("10 mm")),
    Sketcher.Constraint("DistanceY", 0, 1, 0, 2, Q("4.78048 mm")),
    Sketcher.Constraint("DistanceX", -1, 1, 0, 2, Q("31.666797 mm")),
    Sketcher.Constraint("DistanceY", -1, 1, 0, 2, Q("39.968193 mm")),
])
sketch8.setExpression("Constraints[5]", "Params.sketch8_width")
pad6 = doc.addObject("PartDesign::Pad", "Pad005")
body.addObject(pad6)
pad6.Profile = sketch8
pad6.setExpression("Length", "Params.pad6_length")
pad6.Reversed = True
doc.recompute()

fillet = doc.addObject("PartDesign::Fillet", "Fillet")
body.addObject(fillet)
fillet.Base = (pad6, edges_at(pad6, [(9.999, 19.633, 45)]))
fillet.setExpression("Radius", "Params.fillet_radius")
doc.recompute()

fillet2 = doc.addObject("PartDesign::Fillet", "Fillet001")
body.addObject(fillet2)
fillet2.Base = (fillet, edges_at(fillet, [(-0.024, 44.63, 45.155)]))
fillet2.setExpression("Radius", "Params.fillet2_radius")
doc.recompute()

fillet3 = doc.addObject("PartDesign::Fillet", "Fillet002")
body.addObject(fillet3)
fillet3.Base = (fillet2, edges_at(fillet2, [(-10.004, 44.63, 45.15)]))
fillet3.setExpression("Radius", "Params.fillet3_radius")

doc.recompute()
